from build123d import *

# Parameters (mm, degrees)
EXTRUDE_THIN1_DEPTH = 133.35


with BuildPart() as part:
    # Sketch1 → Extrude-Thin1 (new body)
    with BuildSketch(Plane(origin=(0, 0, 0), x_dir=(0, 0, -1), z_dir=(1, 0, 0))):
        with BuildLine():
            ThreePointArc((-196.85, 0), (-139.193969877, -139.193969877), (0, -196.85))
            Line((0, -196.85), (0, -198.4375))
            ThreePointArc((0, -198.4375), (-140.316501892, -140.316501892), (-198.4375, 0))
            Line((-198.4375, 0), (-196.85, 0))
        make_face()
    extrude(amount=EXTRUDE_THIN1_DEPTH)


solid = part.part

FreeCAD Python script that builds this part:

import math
import FreeCAD as App
import Part
import Sketcher
Q = App.Units.Quantity

doc = App.newDocument("Part")
body = doc.addObject("PartDesign::Body", "Body")

sketch1 = body.newObject("Sketcher::SketchObject", "Sketch")
sketch1.AttachmentSupport = (doc.getObject("YZ_Plane"), [""])
sketch1.MapMode = "FlatFace"
sketch1.addGeometry([
    Part.ArcOfCircle(Part.Circle(App.Vector(0, 0, 0), App.Vector(0, 0, 1), 196.85), math.radians(90), math.radians(180)),
    Part.LineSegment(App.Vector(0, 196.85, 0), App.Vector(0, 198.4375, 0)),
    Part.ArcOfCircle(Part.Circle(App.Vector(0, 0, 0), App.Vector(0, 0, 1), 198.4375), math.radians(90), math.radians(180)),
    Part.LineSegment(App.Vector(-198.4375, 0, 0), App.Vector(-196.85, 0, 0)),
], False)
sketch1.addConstraint([
    Sketcher.Constraint("Coincident", 0, 1, 1, 1),
    Sketcher.Constraint("Coincident", 1, 2, 2, 1),
    Sketcher.Constraint("Coincident", 2, 2, 3, 1),
    Sketcher.Constraint("Coincident", 3, 2, 0, 2),
    Sketcher.Constraint("Vertical", 1),
    Sketcher.Constraint("Horizontal", 3),
    Sketcher.Constraint("Coincident", 0, 3, -1, 1),
    Sketcher.Constraint("Coincident", 2, 3, -1, 1),
    Sketcher.Constraint("PointOnObject", 0, 1, -2),
    Sketcher.Constraint("PointOnObject", 2, 2, -1),
    Sketcher.Constraint("Radius", 0, Q("7.75 in")),
    Sketcher.Constraint("Radius", 2, Q("7.8125 in")),
])
pad1 = body.newObject("PartDesign::Pad", "Pad")
pad1.Profile = sketch1
pad1.Length = Q("5.25 in")

doc.recompute()
